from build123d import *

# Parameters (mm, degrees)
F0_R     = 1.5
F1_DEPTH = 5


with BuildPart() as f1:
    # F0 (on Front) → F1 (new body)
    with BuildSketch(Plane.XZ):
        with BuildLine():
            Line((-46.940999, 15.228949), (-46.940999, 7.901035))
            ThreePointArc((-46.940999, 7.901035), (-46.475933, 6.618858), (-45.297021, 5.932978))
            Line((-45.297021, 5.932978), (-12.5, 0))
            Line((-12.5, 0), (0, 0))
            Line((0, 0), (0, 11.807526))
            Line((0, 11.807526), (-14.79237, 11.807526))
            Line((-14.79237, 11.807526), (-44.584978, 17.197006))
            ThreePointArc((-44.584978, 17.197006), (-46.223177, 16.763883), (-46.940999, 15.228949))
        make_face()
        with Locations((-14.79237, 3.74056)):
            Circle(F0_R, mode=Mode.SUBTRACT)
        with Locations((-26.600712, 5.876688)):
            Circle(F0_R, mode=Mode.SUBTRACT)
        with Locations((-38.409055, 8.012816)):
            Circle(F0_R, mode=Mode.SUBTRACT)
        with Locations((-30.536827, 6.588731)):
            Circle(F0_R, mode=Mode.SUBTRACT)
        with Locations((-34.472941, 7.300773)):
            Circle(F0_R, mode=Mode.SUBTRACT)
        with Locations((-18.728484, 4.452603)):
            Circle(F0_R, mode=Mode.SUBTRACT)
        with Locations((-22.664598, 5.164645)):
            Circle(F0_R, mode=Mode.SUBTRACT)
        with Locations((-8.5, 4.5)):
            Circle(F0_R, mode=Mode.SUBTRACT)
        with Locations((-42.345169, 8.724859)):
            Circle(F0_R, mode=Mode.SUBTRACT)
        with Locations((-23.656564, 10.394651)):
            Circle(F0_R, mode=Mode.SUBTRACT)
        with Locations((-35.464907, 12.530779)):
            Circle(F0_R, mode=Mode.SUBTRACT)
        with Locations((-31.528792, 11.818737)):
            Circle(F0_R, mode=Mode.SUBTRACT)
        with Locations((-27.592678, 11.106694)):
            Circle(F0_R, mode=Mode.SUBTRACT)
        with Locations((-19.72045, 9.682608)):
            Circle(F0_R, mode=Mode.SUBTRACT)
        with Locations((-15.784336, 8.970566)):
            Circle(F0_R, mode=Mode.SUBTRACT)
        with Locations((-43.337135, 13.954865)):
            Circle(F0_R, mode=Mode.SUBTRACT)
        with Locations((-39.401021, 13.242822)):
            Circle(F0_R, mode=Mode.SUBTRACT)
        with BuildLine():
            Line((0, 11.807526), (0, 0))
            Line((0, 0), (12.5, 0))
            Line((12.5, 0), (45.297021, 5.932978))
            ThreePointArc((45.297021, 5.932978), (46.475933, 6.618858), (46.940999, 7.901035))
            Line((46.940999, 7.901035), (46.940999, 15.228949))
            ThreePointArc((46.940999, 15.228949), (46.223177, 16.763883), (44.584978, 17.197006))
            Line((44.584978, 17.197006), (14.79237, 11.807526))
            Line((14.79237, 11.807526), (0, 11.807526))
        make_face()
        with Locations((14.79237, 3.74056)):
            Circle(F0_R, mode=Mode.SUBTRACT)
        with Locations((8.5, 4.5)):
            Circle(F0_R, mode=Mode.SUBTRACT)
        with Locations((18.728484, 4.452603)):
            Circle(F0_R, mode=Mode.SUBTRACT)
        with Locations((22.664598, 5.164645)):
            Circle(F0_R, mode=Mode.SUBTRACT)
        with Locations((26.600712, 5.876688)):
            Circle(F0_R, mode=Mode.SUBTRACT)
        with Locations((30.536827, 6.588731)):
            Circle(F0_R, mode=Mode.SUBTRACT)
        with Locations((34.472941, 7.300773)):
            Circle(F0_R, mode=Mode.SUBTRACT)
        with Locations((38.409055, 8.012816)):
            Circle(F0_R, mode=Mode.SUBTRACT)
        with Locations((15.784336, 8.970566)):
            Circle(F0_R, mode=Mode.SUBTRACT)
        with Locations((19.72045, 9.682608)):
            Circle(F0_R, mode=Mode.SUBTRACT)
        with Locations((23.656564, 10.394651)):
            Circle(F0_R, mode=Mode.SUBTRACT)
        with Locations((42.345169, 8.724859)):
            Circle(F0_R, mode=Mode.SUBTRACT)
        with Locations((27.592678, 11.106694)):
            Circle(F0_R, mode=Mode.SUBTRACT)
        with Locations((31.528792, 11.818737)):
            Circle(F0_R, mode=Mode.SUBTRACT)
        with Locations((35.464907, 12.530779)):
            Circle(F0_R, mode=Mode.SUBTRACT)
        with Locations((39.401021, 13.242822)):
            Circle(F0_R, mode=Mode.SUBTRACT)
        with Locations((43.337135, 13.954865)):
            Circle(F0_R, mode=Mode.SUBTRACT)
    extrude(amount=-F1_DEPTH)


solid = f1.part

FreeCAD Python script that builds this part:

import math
import FreeCAD as App
import Part
import Sketcher

V = App.Vector

doc = App.newDocument("Part")
body = doc.addObject("PartDesign::Body", "Body")

sketch1 = body.newObject("Sketcher::SketchObject", "Sketch")
sketch1.AttachmentSupport = (doc.getObject("XZ_Plane"), [""])
sketch1.MapMode = "FlatFace"
sketch1.addGeometry([
    Part.LineSegment(V(-46.9, 15.2, 0), V(-46.9, 7.9, 0)),
    Part.ArcOfCircle(Part.Circle(V(-44.9, 7.9, 0), V(0, 0, 1), 2), math.radians(180), math.radians(260)),
    Part.LineSegment(V(-45.3, 5.9, 0), V(-12.5, 0, 0)),
    Part.LineSegment(V(-12.5, 0, 0), V(12.5, 0, 0)),
    Part.LineSegment(V(12.5, 0, 0), V(45.3, 5.9, 0)),
    Part.ArcOfCircle(Part.Circle(V(44.9, 7.9, 0), V(0, 0, 1), 2), math.radians(-80), math.radians(0)),
    Part.LineSegment(V(46.9, 7.9, 0), V(46.9, 15.2, 0)),
    Part.ArcOfCircle(Part.Circle(V(44.9, 15.2, 0), V(0, 0, 1), 2), math.radians(0), math.radians(100)),
    Part.LineSegment(V(44.6, 17.2, 0), V(14.8, 11.8, 0)),
    Part.LineSegment(V(14.8, 11.8, 0), V(-14.8, 11.8, 0)),
    Part.LineSegment(V(-14.8, 11.8, 0), V(-44.6, 17.2, 0)),
    Part.ArcOfCircle(Part.Circle(V(-44.9, 15.2, 0), V(0, 0, 1), 2), math.radians(80), math.radians(180)),
    Part.Circle(V(-22.7, 5.2, 0), V(0, 0, 1), 1.5),
    Part.Circle(V(-14.8, 3.7, 0), V(0, 0, 1), 1.5),
    Part.Circle(V(-18.7, 4.5, 0), V(0, 0, 1), 1.5),
    Part.Circle(V(-8.5, 4.5, 0), V(0, 0, 1), 1.5),
    Part.Circle(V(-26.6, 5.9, 0), V(0, 0, 1), 1.5),
    Part.Circle(V(-30.5, 6.6, 0), V(0, 0, 1), 1.5),
    Part.Circle(V(-34.5, 7.3, 0), V(0, 0, 1), 1.5),
    Part.Circle(V(-38.4, 8, 0), V(0, 0, 1), 1.5),
    Part.Circle(V(-42.3, 8.7, 0), V(0, 0, 1), 1.5),
    Part.Circle(V(14.8, 3.7, 0), V(0, 0, 1), 1.5),
    Part.Circle(V(8.5, 4.5, 0), V(0, 0, 1), 1.5),
    Part.Circle(V(18.7, 4.5, 0), V(0, 0, 1), 1.5),
    Part.Circle(V(22.7, 5.2, 0), V(0, 0, 1), 1.5),
    Part.Circle(V(26.6, 5.9, 0), V(0, 0, 1), 1.5),
    Part.Circle(V(30.5, 6.6, 0), V(0, 0, 1), 1.5),
    Part.Circle(V(34.5, 7.3, 0), V(0, 0, 1), 1.5),
    Part.Circle(V(38.4, 8, 0), V(0, 0, 1), 1.5),
    Part.Circle(V(42.3, 8.7, 0), V(0, 0, 1), 1.5),
    Part.Circle(V(-23.7, 10.4, 0), V(0, 0, 1), 1.5),
    Part.Circle(V(-27.6, 11.1, 0), V(0, 0, 1), 1.5),
    Part.Circle(V(-31.5, 11.8, 0), V(0, 0, 1), 1.5),
    Part.Circle(V(-15.8, 9, 0), V(0, 0, 1), 1.5),
    Part.Circle(V(-19.7, 9.7, 0), V(0, 0, 1), 1.5),
    Part.Circle(V(-35.5, 12.5, 0), V(0, 0, 1), 1.5),
    Part.Circle(V(-39.4, 13.2, 0), V(0, 0, 1), 1.5),
    Part.Circle(V(-43.3, 14, 0), V(0, 0, 1), 1.5),
    Part.Circle(V(15.8, 9, 0), V(0, 0, 1), 1.5),
    Part.Circle(V(19.7, 9.7, 0), V(0, 0, 1), 1.5),
    Part.Circle(V(23.7, 10.4, 0), V(0, 0, 1), 1.5),
    Part.Circle(V(27.6, 11.1, 0), V(0, 0, 1), 1.5),
    Part.Circle(V(31.5, 11.8, 0), V(0, 0, 1), 1.5),
    Part.Circle(V(35.5, 12.5, 0), V(0, 0, 1), 1.5),
    Part.Circle(V(39.4, 13.2, 0), V(0, 0, 1), 1.5),
    Part.Circle(V(43.3, 14, 0), V(0, 0, 1), 1.5),
], False)
sketch1.addConstraint([
    Sketcher.Constraint("Tangent", 0, 2, 1, 1),
    Sketcher.Constraint("Tangent", 1, 2, 2, 1),
    Sketcher.Constraint("Coincident", 2, 2, 3, 1),
    Sketcher.Constraint("Coincident", 3, 2, 4, 1),
    Sketcher.Constraint("Tangent", 4, 2, 5, 1),
    Sketcher.Constraint("Tangent", 5, 2, 6, 1),
    Sketcher.Constraint("Tangent", 6, 2, 7, 1),
    Sketcher.Constraint("Tangent", 7, 2, 8, 1),
    Sketcher.Constraint("Coincident", 8, 2, 9, 1),
    Sketcher.Constraint("Coincident", 9, 2, 10, 1),
    Sketcher.Constraint("Tangent", 10, 2, 11, 1),
    Sketcher.Constraint("Tangent", 11, 2, 0, 1),
    Sketcher.Constraint("Vertical", 0),
    Sketcher.Constraint("Horizontal", 3),
    Sketcher.Constraint("Vertical", 6),
    Sketcher.Constraint("Horizontal", 9),
    Sketcher.Constraint("Equal", 1, 5),
    Sketcher.Constraint("Equal", 5, 7),
    Sketcher.Constraint("Equal", 7, 11),
    Sketcher.Constraint("Equal", 12, 13),
    Sketcher.Constraint("Equal", 13, 14),
    Sketcher.Constraint("Equal", 14, 15),
    Sketcher.Constraint("Equal", 15, 16),
    Sketcher.Constraint("Equal", 16, 17),
    Sketcher.Constraint("Equal", 17, 18),
    Sketcher.Constraint("Equal", 18, 19),
    Sketcher.Constraint("Equal", 19, 20),
    Sketcher.Constraint("Equal", 20, 21),
    Sketcher.Constraint("Equal", 21, 22),
    Sketcher.Constraint("Equal", 22, 23),
    Sketcher.Constraint("Equal", 23, 24),
    Sketcher.Constraint("Equal", 24, 25),
    Sketcher.Constraint("Equal", 25, 26),
    Sketcher.Constraint("Equal", 26, 27),
    Sketcher.Constraint("Equal", 27, 28),
    Sketcher.Constraint("Equal", 28, 29),
    Sketcher.Constraint("Equal", 29, 30),
    Sketcher.Constraint("Equal", 30, 31),
    Sketcher.Constraint("Equal", 31, 32),
    Sketcher.Constraint("Equal", 32, 33),
    Sketcher.Constraint("Equal", 33, 34),
    Sketcher.Constraint("Equal", 34, 35),
    Sketcher.Constraint("Equal", 35, 36),
    Sketcher.Constraint("Equal", 36, 37),
    Sketcher.Constraint("Equal", 37, 38),
    Sketcher.Constraint("Equal", 38, 39),
    Sketcher.Constraint("Equal", 39, 40),
    Sketcher.Constraint("Equal", 40, 41),
    Sketcher.Constraint("Equal", 41, 42),
    Sketcher.Constraint("Equal", 42, 43),
    Sketcher.Constraint("Equal", 43, 44),
    Sketcher.Constraint("Equal", 44, 45),
    Sketcher.Constraint("Symmetric", 2, 2, 3, 2, -1, 1),
    Sketcher.Constraint("Symmetric", 1, 3, 5, 3, -2),
    Sketcher.Constraint("Symmetric", 13, 3, 21, 3, -2),
    Sketcher.Constraint("Symmetric", 15, 3, 22, 3, -2),
    Sketcher.Constraint("Symmetric", 14, 3, 23, 3, -2),
    Sketcher.Constraint("Symmetric", 12, 3, 24, 3, -2),
    Sketcher.Constraint("Symmetric", 16, 3, 25, 3, -2),
    Sketcher.Constraint("Symmetric", 17, 3, 26, 3, -2),
    Sketcher.Constraint("Symmetric", 18, 3, 27, 3, -2),
    Sketcher.Constraint("Symmetric", 19, 3, 28, 3, -2),
    Sketcher.Constraint("Symmetric", 20, 3, 29, 3, -2),
    Sketcher.Constraint("Symmetric", 33, 3, 38, 3, -2),
    Sketcher.Constraint("Symmetric", 34, 3, 39, 3, -2),
    Sketcher.Constraint("Symmetric", 30, 3, 40, 3, -2),
    Sketcher.Constraint("Symmetric", 31, 3, 41, 3, -2),
    Sketcher.Constraint("Symmetric", 32, 3, 42, 3, -2),
    Sketcher.Constraint("Symmetric", 35, 3, 43, 3, -2),
    Sketcher.Constraint("Symmetric", 36, 3, 44, 3, -2),
    Sketcher.Constraint("Symmetric", 37, 3, 45, 3, -2),
    Sketcher.Constraint("Symmetric", 7, 2, 10, 2, -2),
    Sketcher.Constraint("Parallel", 4, 8),
    Sketcher.Constraint("Vertical", 21, 3, 8, 2),
    Sketcher.Constraint("Diameter", 12, 3.0),
    Sketcher.Constraint("Radius", 1, 2.0),
    Sketcher.Constraint("DistanceX", 3, 1, 3, 2, 25.0),
    Sketcher.Constraint("DistanceX", 15, 3, 22, 3, 17.0),
    Sketcher.Constraint("DistanceY", -1, 1, 15, 3, 4.5),
    Sketcher.Constraint("DistanceX", 1, 3, -1, 1, 44.940999),
    Sketcher.Constraint("DistanceX", 9, 2, 9, 1, 29.58474),
    Sketcher.Constraint("DistanceX", 12, 3, -1, 1, 22.664598),
    Sketcher.Constraint("Distance", 2, 33.329339),
    Sketcher.Constraint("DistanceY", 0, 2, 0, 1, 7.327914),
    Sketcher.Constraint("DistanceY", -1, 1, 13, 3, 3.74056),
    Sketcher.Constraint("DistanceY", -1, 1, 17, 3, 6.588731),
    Sketcher.Constraint("DistanceX", 18, 3, -1, 1, 34.472941),
    Sketcher.Constraint("DistanceX", 20, 3, -1, 1, 42.345169),
    Sketcher.Constraint("DistanceY", -1, 1, 20, 3, 8.724859),
    Sketcher.Constraint("DistanceY", -1, 1, 30, 3, 10.394651),
    Sketcher.Constraint("DistanceX", 32, 3, -1, 1, 31.528792),
    Sketcher.Constraint("DistanceX", 34, 3, -1, 1, 19.72045),
    Sketcher.Constraint("DistanceY", -1, 1, 35, 3, 12.530779),
    Sketcher.Constraint("DistanceX", 36, 3, -1, 1, 39.401021),
    Sketcher.Constraint("DistanceY", 12, 3, 1, 3, 2.73639),
    Sketcher.Constraint("DistanceY", 14, 3, 1, 3, 3.448432),
    Sketcher.Constraint("DistanceX", 17, 3, 12, 3, 7.872229),
    Sketcher.Constraint("DistanceX", 18, 3, 16, 3, 7.872229),
    Sketcher.Constraint("DistanceY", 18, 3, 1, 3, 0.600262),
    Sketcher.Constraint("DistanceY", 1, 3, 19, 3, 0.111781),
    Sketcher.Constraint("DistanceX", 19, 3, 17, 3, 7.872228),
    Sketcher.Constraint("DistanceY", 16, 3, 19, 3, 2.136128),
    Sketcher.Constraint("DistanceX", 16, 3, 30, 3, 2.944148),
    Sketcher.Constraint("DistanceX", 30, 3, 14, 3, 4.92808),
    Sketcher.Constraint("DistanceX", 17, 3, 31, 3, 2.944149),
    Sketcher.Constraint("DistanceY", 12, 3, 31, 3, 5.942049),
    Sketcher.Constraint("DistanceY", 16, 3, 32, 3, 5.942049),
    Sketcher.Constraint("DistanceX", 14, 3, 33, 3, 2.944148),
    Sketcher.Constraint("DistanceY", 12, 3, 33, 3, 3.805921),
    Sketcher.Constraint("DistanceX", 19, 3, 35, 3, 2.944148),
    Sketcher.Constraint("DistanceY", 36, 3, 11, 3, 1.986129),
    Sketcher.Constraint("DistanceY", 1, 3, 37, 3, 6.05383),
    Sketcher.Constraint("DistanceX", 37, 3, 19, 3, 4.92808),
    Sketcher.Constraint("DistanceY", 25, 3, 39, 3, 3.80592),
])
pad1 = body.newObject("PartDesign::Pad", "Pad")
pad1.Profile = sketch1
pad1.Length = 5
pad1.Reversed = True

doc.recompute()
